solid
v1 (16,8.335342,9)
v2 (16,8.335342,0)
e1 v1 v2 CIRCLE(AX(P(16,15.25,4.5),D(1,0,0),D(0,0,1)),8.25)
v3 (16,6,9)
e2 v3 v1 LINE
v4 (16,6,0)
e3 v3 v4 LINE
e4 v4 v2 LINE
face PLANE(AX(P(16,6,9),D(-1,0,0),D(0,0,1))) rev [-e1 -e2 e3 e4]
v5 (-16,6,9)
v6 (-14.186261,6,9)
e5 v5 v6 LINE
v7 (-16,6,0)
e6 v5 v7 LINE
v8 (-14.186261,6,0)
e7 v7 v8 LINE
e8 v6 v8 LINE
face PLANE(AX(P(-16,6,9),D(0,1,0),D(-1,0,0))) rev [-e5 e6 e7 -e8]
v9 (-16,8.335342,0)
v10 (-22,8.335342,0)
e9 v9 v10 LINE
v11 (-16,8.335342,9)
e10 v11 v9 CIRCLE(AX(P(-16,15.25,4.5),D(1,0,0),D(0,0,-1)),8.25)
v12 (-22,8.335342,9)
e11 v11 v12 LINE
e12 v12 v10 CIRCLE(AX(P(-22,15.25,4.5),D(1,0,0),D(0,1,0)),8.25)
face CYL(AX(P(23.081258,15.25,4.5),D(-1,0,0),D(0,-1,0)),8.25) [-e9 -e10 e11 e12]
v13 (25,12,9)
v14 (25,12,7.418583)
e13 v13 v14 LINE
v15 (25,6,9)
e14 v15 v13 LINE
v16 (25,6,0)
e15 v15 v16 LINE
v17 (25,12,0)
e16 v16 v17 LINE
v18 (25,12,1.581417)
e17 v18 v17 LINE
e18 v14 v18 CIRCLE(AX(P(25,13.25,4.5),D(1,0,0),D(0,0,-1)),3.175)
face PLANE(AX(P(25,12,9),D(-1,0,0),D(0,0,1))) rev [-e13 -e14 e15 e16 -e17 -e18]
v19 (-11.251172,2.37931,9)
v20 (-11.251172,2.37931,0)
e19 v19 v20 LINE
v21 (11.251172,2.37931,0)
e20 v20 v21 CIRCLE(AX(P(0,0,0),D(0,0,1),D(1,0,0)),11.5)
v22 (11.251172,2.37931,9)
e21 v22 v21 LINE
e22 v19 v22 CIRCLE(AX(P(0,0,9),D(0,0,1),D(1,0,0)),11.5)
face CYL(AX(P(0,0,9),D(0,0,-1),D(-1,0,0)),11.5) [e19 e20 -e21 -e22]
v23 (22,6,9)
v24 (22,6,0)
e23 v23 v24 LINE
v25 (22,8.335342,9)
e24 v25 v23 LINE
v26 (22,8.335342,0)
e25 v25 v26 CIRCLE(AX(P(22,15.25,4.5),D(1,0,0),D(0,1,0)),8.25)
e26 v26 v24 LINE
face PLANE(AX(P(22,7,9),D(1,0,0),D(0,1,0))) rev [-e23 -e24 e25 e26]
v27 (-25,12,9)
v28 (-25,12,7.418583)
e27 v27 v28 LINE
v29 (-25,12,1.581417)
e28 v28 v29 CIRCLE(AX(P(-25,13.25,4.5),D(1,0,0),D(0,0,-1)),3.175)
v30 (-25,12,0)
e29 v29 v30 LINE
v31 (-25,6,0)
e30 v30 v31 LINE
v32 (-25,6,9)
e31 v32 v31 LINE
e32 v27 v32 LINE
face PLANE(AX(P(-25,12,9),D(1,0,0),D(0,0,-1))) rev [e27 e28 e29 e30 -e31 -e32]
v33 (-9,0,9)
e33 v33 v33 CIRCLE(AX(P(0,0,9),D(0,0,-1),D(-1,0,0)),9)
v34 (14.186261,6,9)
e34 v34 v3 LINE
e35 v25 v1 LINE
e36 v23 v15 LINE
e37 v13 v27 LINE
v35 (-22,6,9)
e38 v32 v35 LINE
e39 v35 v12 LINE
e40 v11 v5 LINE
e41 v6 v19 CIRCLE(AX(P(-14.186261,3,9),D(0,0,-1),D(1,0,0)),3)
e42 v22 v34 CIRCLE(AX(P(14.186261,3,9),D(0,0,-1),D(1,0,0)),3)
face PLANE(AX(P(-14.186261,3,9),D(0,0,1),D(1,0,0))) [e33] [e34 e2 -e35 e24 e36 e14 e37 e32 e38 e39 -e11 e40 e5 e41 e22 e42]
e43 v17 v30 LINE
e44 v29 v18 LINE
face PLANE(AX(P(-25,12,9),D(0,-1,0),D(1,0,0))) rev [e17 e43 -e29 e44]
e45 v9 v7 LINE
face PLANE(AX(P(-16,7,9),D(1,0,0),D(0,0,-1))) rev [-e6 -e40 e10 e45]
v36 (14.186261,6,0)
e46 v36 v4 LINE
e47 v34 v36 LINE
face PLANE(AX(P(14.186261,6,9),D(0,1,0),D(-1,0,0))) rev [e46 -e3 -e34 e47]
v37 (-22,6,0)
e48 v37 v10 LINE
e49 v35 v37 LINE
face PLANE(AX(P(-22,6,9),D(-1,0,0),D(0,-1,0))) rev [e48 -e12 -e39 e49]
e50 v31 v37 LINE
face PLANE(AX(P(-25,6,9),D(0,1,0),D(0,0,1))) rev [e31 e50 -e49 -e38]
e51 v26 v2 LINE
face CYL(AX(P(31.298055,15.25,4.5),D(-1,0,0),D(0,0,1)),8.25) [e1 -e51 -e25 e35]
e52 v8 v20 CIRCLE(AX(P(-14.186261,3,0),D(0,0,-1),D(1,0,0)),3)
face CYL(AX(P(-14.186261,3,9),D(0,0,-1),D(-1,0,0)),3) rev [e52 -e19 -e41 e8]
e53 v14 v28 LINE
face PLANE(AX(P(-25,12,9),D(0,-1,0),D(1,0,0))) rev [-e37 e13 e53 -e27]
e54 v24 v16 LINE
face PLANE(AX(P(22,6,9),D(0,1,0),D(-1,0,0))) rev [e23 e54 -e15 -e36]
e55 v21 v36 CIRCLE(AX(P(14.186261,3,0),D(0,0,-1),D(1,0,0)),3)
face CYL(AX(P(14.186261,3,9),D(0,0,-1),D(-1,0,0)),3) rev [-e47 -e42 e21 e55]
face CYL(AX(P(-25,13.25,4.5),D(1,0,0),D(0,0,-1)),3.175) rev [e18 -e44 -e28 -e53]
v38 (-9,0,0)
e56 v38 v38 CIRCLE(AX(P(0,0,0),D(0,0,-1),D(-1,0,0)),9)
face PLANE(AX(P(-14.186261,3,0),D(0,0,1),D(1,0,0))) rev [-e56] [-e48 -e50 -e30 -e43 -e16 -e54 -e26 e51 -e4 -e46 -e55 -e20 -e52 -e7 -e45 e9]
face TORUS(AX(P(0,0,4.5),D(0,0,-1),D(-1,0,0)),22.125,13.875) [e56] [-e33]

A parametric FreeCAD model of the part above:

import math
import FreeCAD as App
import Part
import Sketcher
from FreeCAD import Vector

doc = App.newDocument("Part")
params = doc.addObject("Spreadsheet::Sheet", "Params")
for row, (alias, value) in enumerate([
    ("sketch1_radius", "3 mm"),
    ("sketch1_diameter", "16.5 mm"),
    ("sketch1_radius2", "11.5 mm"),
    ("sketch1_width", "50 mm"),
    ("sketch1_width2", "3 mm"),
    ("pad1_length", "9 mm"),
    ("sketch2_diameter", "6.35 mm"),
    ("sketch3_radius", "8.25 mm"),
    ("pocket2_length", "6 mm"),
    ("sketch4_height", "9 mm"),
    ("sketch4_radius", "8.25 mm"),
    ("pocket3_length", "6 mm"),
    ("sketch5_width", "9 mm"),
    ("groove_angle", "360 deg"),
], start=1):
    params.set(f"A{row}", alias)
    params.set(f"B{row}", "=" + value)
    params.setAlias(f"B{row}", alias)

body = doc.addObject("PartDesign::Body", "Body")

sketch1 = body.newObject("Sketcher::SketchObject", "Sketch")
sketch1.AttachmentSupport = (doc.getObject("XY_Plane"), [""])
sketch1.MapMode = "FlatFace"
sketch1.addGeometry([
    Part.LineSegment(Vector(25, 12, 0), Vector(-25, 12, 0)),
    Part.LineSegment(Vector(-25, 12, 0), Vector(-25, 6, 0)),
    Part.LineSegment(Vector(-25, 6, 0), Vector(-22, 6, 0)),
    Part.LineSegment(Vector(-22, 6, 0), Vector(-22, 7, 0)),
    Part.LineSegment(Vector(-22, 7, 0), Vector(-16, 7, 0)),
    Part.LineSegment(Vector(-16, 7, 0), Vector(-16, 6, 0)),
    Part.LineSegment(Vector(-16, 6, 0), Vector(-14.2, 6, 0)),
    Part.ArcOfCircle(Part.Circle(Vector(-14.2, 3, 0), Vector(0, 0, 1), 3), math.radians(-12), math.radians(90)),
    Part.ArcOfCircle(Part.Circle(Vector(0, 0, 0), Vector(0, 0, 1), 11.5), math.radians(168), math.radians(372)),
    Part.ArcOfCircle(Part.Circle(Vector(14.2, 3, 0), Vector(0, 0, 1), 3), math.radians(90), math.radians(192)),
    Part.LineSegment(Vector(14.2, 6, 0), Vector(16, 6, 0)),
    Part.LineSegment(Vector(16, 6, 0), Vector(16, 7, 0)),
    Part.LineSegment(Vector(16, 7, 0), Vector(22, 7, 0)),
    Part.LineSegment(Vector(22, 7, 0), Vector(22, 6, 0)),
    Part.LineSegment(Vector(22, 6, 0), Vector(25, 6, 0)),
    Part.LineSegment(Vector(25, 6, 0), Vector(25, 12, 0)),
    Part.Circle(Vector(0, 0, 0), Vector(0, 0, 1), 8.2),
], False)
sketch1.addConstraint([
    Sketcher.Constraint("Coincident", 0, 2, 1, 1),
    Sketcher.Constraint("Coincident", 1, 2, 2, 1),
    Sketcher.Constraint("Coincident", 2, 2, 3, 1),
    Sketcher.Constraint("Coincident", 3, 2, 4, 1),
    Sketcher.Constraint("Coincident", 4, 2, 5, 1),
    Sketcher.Constraint("Coincident", 5, 2, 6, 1),
    Sketcher.Constraint("Tangent", 6, 2, 7, 2),
    Sketcher.Constraint("Tangent", 7, 1, 8, 1),
    Sketcher.Constraint("Tangent", 8, 2, 9, 2),
    Sketcher.Constraint("Tangent", 9, 1, 10, 1),
    Sketcher.Constraint("Coincident", 10, 2, 11, 1),
    Sketcher.Constraint("Coincident", 11, 2, 12, 1),
    Sketcher.Constraint("Coincident", 12, 2, 13, 1),
    Sketcher.Constraint("Coincident", 13, 2, 14, 1),
    Sketcher.Constraint("Coincident", 14, 2, 15, 1),
    Sketcher.Constraint("Coincident", 15, 2, 0, 1),
    Sketcher.Constraint("Horizontal", 0),
    Sketcher.Constraint("Vertical", 1),
    Sketcher.Constraint("Horizontal", 2),
    Sketcher.Constraint("Vertical", 3),
    Sketcher.Constraint("Horizontal", 4),
    Sketcher.Constraint("Vertical", 5),
    Sketcher.Constraint("Horizontal", 6),
    Sketcher.Constraint("Horizontal", 10),
    Sketcher.Constraint("Vertical", 11),
    Sketcher.Constraint("Horizontal", 12),
    Sketcher.Constraint("Vertical", 13),
    Sketcher.Constraint("Horizontal", 14),
    Sketcher.Constraint("Vertical", 15),
    Sketcher.Constraint("Coincident", 8, 3, -1, 1),
    Sketcher.Constraint("Coincident", 16, 3, -1, 1),
    Sketcher.Constraint("Equal", 7, 9),
    Sketcher.Constraint("Symmetric", 5, 2, 10, 2, -2),
    Sketcher.Constraint("Symmetric", 3, 2, 12, 2, -2),
    Sketcher.Constraint("Symmetric", 1, 2, 14, 2, -2),
    Sketcher.Constraint("Horizontal", 2, 2, 5, 2),
    Sketcher.Constraint("Equal", 12, 1),
    Sketcher.Constraint("Radius", 7, 3.0),
    Sketcher.Constraint("Diameter", 16, 16.5),
    Sketcher.Constraint("Radius", 8, 11.5),
    Sketcher.Constraint("DistanceX", 0, 2, 0, 1, 50.0),
    Sketcher.Constraint("DistanceX", 2, 1, 2, 2, 3.0),
    Sketcher.Constraint("DistanceX", 4, 1, 4, 2, 6.0),
    Sketcher.Constraint("DistanceY", 3, 1, 3, 2, 1.0),
    Sketcher.Constraint("DistanceY", -1, 1, 7, 3, 3.0),
])
sketch1.setExpression("Constraints[37]", "Params.sketch1_radius")
sketch1.setExpression("Constraints[38]", "Params.sketch1_diameter")
sketch1.setExpression("Constraints[39]", "Params.sketch1_radius2")
sketch1.setExpression("Constraints[40]", "Params.sketch1_width")
sketch1.setExpression("Constraints[41]", "Params.sketch1_width2")
pad1 = body.newObject("PartDesign::Pad", "Pad")
pad1.Profile = sketch1
pad1.setExpression("Length", "Params.pad1_length")

sketch2 = body.newObject("Sketcher::SketchObject", "Sketch001")
sketch2.AttachmentSupport = (doc.getObject("YZ_Plane"), [""])
sketch2.MapMode = "FlatFace"
sketch2.AttachmentOffset = App.Placement(Vector(0, 0, 25), App.Rotation())
sketch2.addGeometry(Part.Circle(Vector(13.2, 4.5, 0), Vector(0, 0, 1), 3.2), False)
sketch2.addConstraint([
    Sketcher.Constraint("Diameter", 0, 6.35),
    Sketcher.Constraint("DistanceY", -1, 1, 0, 3, 4.5),
    Sketcher.Constraint("DistanceX", -1, 1, 0, 3, 13.25),
])
sketch2.setExpression("Constraints[0]", "Params.sketch2_diameter")
pocket1 = body.newObject("PartDesign::Pocket", "Pocket")
pocket1.Profile = sketch2
pocket1.Type = "ThroughAll"

sketch3 = body.newObject("Sketcher::SketchObject", "Sketch002")
sketch3.AttachmentSupport = (doc.getObject("YZ_Plane"), [""])
sketch3.MapMode = "FlatFace"
sketch3.AttachmentOffset = App.Placement(Vector(0, 0, -22), App.Rotation())
sketch3.addGeometry([
    Part.LineSegment(Vector(18.6, 15.6, 0), Vector(-18.1, 15.6, 0)),
    Part.LineSegment(Vector(-18.1, 15.6, 0), Vector(-18.1, -6.6, 0)),
    Part.LineSegment(Vector(-18.1, -6.6, 0), Vector(18.6, -6.6, 0)),
    Part.LineSegment(Vector(18.6, -6.6, 0), Vector(18.6, -3, 0)),
    Part.ArcOfCircle(Part.Circle(Vector(15.2, 4.5, 0), Vector(0, 0, 1), 8.2), math.radians(66), math.radians(294)),
    Part.LineSegment(Vector(18.6, 12, 0), Vector(18.6, 15.6, 0)),
], False)
sketch3.addConstraint([
    Sketcher.Constraint("Coincident", 0, 2, 1, 1),
    Sketcher.Constraint("Coincident", 1, 2, 2, 1),
    Sketcher.Constraint("Coincident", 2, 2, 3, 1),
    Sketcher.Constraint("Coincident", 3, 2, 4, 2),
    Sketcher.Constraint("Coincident", 4, 1, 5, 1),
    Sketcher.Constraint("Coincident", 5, 2, 0, 1),
    Sketcher.Constraint("Horizontal", 0),
    Sketcher.Constraint("Vertical", 1),
    Sketcher.Constraint("Horizontal", 2),
    Sketcher.Constraint("Vertical", 3),
    Sketcher.Constraint("Vertical", 5),
    Sketcher.Constraint("Vertical", 3, 2, 4, 1),
    Sketcher.Constraint("Equal", 3, 5),
    Sketcher.Constraint("Radius", 4, 8.25),
    Sketcher.Constraint("DistanceY", -1, 1, 4, 3, 4.5),
    Sketcher.Constraint("DistanceX", 0, 2, 0, 1, 36.696),
    Sketcher.Constraint("DistanceY", 1, 2, 1, 1, 22.196),
    Sketcher.Constraint("DistanceX", -1, 1, 4, 3, 15.25),
    Sketcher.Constraint("DistanceX", 0, 2, -1, 1, 18.098),
])
sketch3.setExpression("Constraints[13]", "Params.sketch3_radius")
pocket2 = body.newObject("PartDesign::Pocket", "Pocket001")
pocket2.Profile = sketch3
pocket2.setExpression("Length", "Params.pocket2_length")
pocket2.Reversed = True

sketch4 = body.newObject("Sketcher::SketchObject", "Sketch003")
sketch4.AttachmentSupport = (doc.getObject("YZ_Plane"), [""])
sketch4.MapMode = "FlatFace"
sketch4.AttachmentOffset = App.Placement(Vector(0, 0, 16), App.Rotation())
sketch4.addGeometry([
    Part.LineSegment(Vector(8.3, 0, 0), Vector(6, 0, 0)),
    Part.LineSegment(Vector(6, 0, 0), Vector(6, 9, 0)),
    Part.LineSegment(Vector(6, 9, 0), Vector(8.3, 9, 0)),
    Part.ArcOfCircle(Part.Circle(Vector(15.2, 4.5, 0), Vector(0, 0, 1), 8.2), math.radians(147), math.radians(213)),
], False)
sketch4.addConstraint([
    Sketcher.Constraint("Coincident", 0, 2, 1, 1),
    Sketcher.Constraint("Coincident", 1, 2, 2, 1),
    Sketcher.Constraint("Coincident", 2, 2, 3, 1),
    Sketcher.Constraint("Coincident", 3, 2, 0, 1),
    Sketcher.Constraint("Horizontal", 0),
    Sketcher.Constraint("Vertical", 1),
    Sketcher.Constraint("Horizontal", 2),
    Sketcher.Constraint("PointOnObject", 0, 2, -1),
    Sketcher.Constraint("Vertical", 2, 2, 3, 2),
    Sketcher.Constraint("DistanceY", 1, 1, 1, 2, 9.0),
    Sketcher.Constraint("Radius", 3, 8.25),
    Sketcher.Constraint("DistanceX", -1, 1, 0, 2, 6.0),
    Sketcher.Constraint("DistanceX", -1, 1, 3, 3, 15.25),
])
sketch4.setExpression("Constraints[9]", "Params.sketch4_height")
sketch4.setExpression("Constraints[10]", "Params.sketch4_radius")
pocket3 = body.newObject("PartDesign::Pocket", "Pocket002")
pocket3.Profile = sketch4
pocket3.setExpression("Length", "Params.pocket3_length")
pocket3.Reversed = True

sketch5 = body.newObject("Sketcher::SketchObject", "Sketch004")
sketch5.AttachmentSupport = (doc.getObject("YZ_Plane"), [""])
sketch5.MapMode = "FlatFace"
sketch5.addGeometry([
    Part.LineSegment(Vector(9, 9, 0), Vector(0, 9, 0)),
    Part.LineSegment(Vector(0, 9, 0), Vector(0, 0, 0)),
    Part.LineSegment(Vector(0, 0, 0), Vector(9, 0, 0)),
    Part.ArcOfCircle(Part.Circle(Vector(22, 4, 0), Vector(0, 0, 1), 14), math.radians(161), math.radians(199)),
], False)
sketch5.addConstraint([
    Sketcher.Constraint("Coincident", 0, 2, 1, 1),
    Sketcher.Constraint("Coincident", 1, 2, 2, 1),
    Sketcher.Constraint("Coincident", 2, 2, 3, 2),
    Sketcher.Constraint("Coincident", 3, 1, 0, 1),
    Sketcher.Constraint("Horizontal", 0),
    Sketcher.Constraint("Vertical", 1),
    Sketcher.Constraint("Horizontal", 2),
    Sketcher.Constraint("Coincident", 1, 2, -1, 1),
    Sketcher.Constraint("Vertical", 2, 2, 3, 1),
    Sketcher.Constraint("Equal", 2, 1),
    Sketcher.Constraint("DistanceX", 0, 2, 0, 1, 9.0),
    Sketcher.Constraint("Radius", 3, 13.875),
])
sketch5.setExpression("Constraints[10]", "Params.sketch5_width")
groove = body.newObject("PartDesign::Groove", "Groove")
groove.Profile = sketch5
groove.ReferenceAxis = (sketch5, ["V_Axis"])
groove.setExpression("Angle", "Params.groove_angle")

doc.recompute()
